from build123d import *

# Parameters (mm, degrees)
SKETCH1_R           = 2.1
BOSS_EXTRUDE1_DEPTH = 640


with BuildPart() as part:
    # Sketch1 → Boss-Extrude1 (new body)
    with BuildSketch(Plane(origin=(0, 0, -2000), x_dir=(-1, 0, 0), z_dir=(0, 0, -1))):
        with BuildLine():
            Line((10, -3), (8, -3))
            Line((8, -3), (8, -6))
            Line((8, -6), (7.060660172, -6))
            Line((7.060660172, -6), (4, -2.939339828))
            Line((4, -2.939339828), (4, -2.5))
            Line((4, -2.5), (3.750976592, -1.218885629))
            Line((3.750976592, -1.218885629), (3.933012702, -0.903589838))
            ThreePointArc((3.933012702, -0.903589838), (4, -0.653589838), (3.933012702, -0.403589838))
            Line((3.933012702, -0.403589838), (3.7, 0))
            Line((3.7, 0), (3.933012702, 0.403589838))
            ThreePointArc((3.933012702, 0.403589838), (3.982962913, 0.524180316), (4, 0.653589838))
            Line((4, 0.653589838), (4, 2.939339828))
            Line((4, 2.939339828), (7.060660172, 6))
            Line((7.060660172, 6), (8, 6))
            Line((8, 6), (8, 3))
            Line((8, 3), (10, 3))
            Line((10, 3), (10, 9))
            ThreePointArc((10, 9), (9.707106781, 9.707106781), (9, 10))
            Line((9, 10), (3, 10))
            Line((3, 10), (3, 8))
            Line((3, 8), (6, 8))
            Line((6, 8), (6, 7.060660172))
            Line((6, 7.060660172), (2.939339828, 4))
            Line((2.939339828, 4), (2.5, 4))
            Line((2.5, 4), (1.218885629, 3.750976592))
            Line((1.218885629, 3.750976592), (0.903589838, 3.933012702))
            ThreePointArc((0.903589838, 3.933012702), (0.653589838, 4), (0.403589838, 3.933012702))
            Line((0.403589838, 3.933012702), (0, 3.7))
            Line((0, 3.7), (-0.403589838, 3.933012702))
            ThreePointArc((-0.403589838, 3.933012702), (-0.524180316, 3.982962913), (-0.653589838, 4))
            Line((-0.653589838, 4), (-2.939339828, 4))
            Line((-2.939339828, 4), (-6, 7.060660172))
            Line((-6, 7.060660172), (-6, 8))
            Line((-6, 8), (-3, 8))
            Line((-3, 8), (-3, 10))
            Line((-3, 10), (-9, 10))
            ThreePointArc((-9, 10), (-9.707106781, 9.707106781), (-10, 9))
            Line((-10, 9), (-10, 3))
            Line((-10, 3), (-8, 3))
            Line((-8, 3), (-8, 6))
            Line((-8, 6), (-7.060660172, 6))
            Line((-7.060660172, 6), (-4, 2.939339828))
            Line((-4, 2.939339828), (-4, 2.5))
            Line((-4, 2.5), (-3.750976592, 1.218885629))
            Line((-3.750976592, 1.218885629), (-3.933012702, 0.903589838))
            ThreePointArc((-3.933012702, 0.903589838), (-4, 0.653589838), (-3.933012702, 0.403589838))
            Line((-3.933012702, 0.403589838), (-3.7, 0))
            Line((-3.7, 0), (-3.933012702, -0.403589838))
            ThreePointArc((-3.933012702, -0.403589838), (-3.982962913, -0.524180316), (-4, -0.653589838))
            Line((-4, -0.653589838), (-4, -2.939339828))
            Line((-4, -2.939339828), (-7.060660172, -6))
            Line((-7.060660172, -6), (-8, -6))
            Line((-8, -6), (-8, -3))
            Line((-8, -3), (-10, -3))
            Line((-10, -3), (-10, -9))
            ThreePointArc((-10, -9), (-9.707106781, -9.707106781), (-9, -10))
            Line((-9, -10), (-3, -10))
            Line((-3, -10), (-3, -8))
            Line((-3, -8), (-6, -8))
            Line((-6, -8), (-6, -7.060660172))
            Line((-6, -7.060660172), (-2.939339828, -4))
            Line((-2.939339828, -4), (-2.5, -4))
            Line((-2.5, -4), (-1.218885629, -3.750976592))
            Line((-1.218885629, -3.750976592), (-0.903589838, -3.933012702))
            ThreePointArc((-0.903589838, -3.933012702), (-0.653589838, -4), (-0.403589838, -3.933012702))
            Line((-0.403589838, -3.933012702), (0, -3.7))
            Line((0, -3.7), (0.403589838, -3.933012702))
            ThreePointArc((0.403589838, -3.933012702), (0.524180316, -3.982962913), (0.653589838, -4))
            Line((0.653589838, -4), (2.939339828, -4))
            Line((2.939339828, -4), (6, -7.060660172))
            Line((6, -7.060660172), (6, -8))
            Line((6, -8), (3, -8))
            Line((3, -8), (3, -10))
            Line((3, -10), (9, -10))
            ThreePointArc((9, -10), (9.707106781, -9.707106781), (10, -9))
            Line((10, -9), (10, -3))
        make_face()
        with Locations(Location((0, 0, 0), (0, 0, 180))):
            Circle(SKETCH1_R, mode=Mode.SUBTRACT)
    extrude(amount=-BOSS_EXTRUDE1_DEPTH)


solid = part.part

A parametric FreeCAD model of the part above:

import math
import FreeCAD as App
import Part
import Sketcher
Q = App.Units.Quantity

doc = App.newDocument("Part")
body = doc.addObject("PartDesign::Body", "Body")

# Sketch on XY plane
sketch1 = doc.addObject("Sketcher::SketchObject", "Sketch")
body.addObject(sketch1)
sketch1.AttachmentSupport = (doc.XY_Plane, [""])
sketch1.MapMode = "FlatFace"
sketch1.AttachmentOffset = App.Placement(App.Vector(0, 0, -2000), App.Rotation())
sketch1.addGeometry([
    Part.LineSegment(App.Vector(-10, -3, 0), App.Vector(-8, -3, 0)),  # 0
    Part.LineSegment(App.Vector(-8, -3, 0), App.Vector(-8, -6, 0)),  # 1
    Part.LineSegment(App.Vector(-8, -6, 0), App.Vector(-7.06, -6, 0)),  # 2
    Part.LineSegment(App.Vector(-7.06, -6, 0), App.Vector(-4, -2.94, 0)),  # 3
    Part.LineSegment(App.Vector(-4, -2.94, 0), App.Vector(-4, -2.5, 0)),  # 4
    Part.LineSegment(App.Vector(-4, -2.5, 0), App.Vector(-3.75, -1.22, 0)),  # 5
    Part.LineSegment(App.Vector(-3.75, -1.22, 0), App.Vector(-3.93, -0.9, 0)),  # 6
    Part.ArcOfCircle(Part.Circle(App.Vector(-3.5, -0.65, 0), App.Vector(0, 0, 1), 0.5), math.radians(150), math.radians(210)),  # 7
    Part.LineSegment(App.Vector(-3.93, -0.4, 0), App.Vector(-3.7, 0, 0)),  # 8
    Part.LineSegment(App.Vector(-3.7, 0, 0), App.Vector(-3.93, 0.4, 0)),  # 9
    Part.ArcOfCircle(Part.Circle(App.Vector(-3.5, 0.65, 0), App.Vector(0, 0, 1), 0.5), math.radians(-180), math.radians(-150)),  # 10
    Part.LineSegment(App.Vector(-4, 0.65, 0), App.Vector(-4, 2.94, 0)),  # 11
    Part.LineSegment(App.Vector(-4, 2.94, 0), App.Vector(-7.06, 6, 0)),  # 12
    Part.LineSegment(App.Vector(-7.06, 6, 0), App.Vector(-8, 6, 0)),  # 13
    Part.LineSegment(App.Vector(-8, 6, 0), App.Vector(-8, 3, 0)),  # 14
    Part.LineSegment(App.Vector(-8, 3, 0), App.Vector(-10, 3, 0)),  # 15
    Part.LineSegment(App.Vector(-10, 3, 0), App.Vector(-10, 9, 0)),  # 16
    Part.ArcOfCircle(Part.Circle(App.Vector(-9, 9, 0), App.Vector(0, 0, 1), 1), math.radians(90), math.radians(180)),  # 17
    Part.LineSegment(App.Vector(-9, 10, 0), App.Vector(-3, 10, 0)),  # 18
    Part.LineSegment(App.Vector(-3, 10, 0), App.Vector(-3, 8, 0)),  # 19
    Part.LineSegment(App.Vector(-3, 8, 0), App.Vector(-6, 8, 0)),  # 20
    Part.LineSegment(App.Vector(-6, 8, 0), App.Vector(-6, 7.06, 0)),  # 21
    Part.LineSegment(App.Vector(-6, 7.06, 0), App.Vector(-2.94, 4, 0)),  # 22
    Part.LineSegment(App.Vector(-2.94, 4, 0), App.Vector(-2.5, 4, 0)),  # 23
    Part.LineSegment(App.Vector(-2.5, 4, 0), App.Vector(-1.22, 3.75, 0)),  # 24
    Part.LineSegment(App.Vector(-1.22, 3.75, 0), App.Vector(-0.9, 3.93, 0)),  # 25
    Part.ArcOfCircle(Part.Circle(App.Vector(-0.65, 3.5, 0), App.Vector(0, 0, 1), 0.5), math.radians(60), math.radians(120)),  # 26
    Part.LineSegment(App.Vector(-0.4, 3.93, 0), App.Vector(0, 3.7, 0)),  # 27
    Part.LineSegment(App.Vector(0, 3.7, 0), App.Vector(0.4, 3.93, 0)),  # 28
    Part.ArcOfCircle(Part.Circle(App.Vector(0.65, 3.5, 0), App.Vector(0, 0, 1), 0.5), math.radians(90), math.radians(120)),  # 29
    Part.LineSegment(App.Vector(0.65, 4, 0), App.Vector(2.94, 4, 0)),  # 30
    Part.LineSegment(App.Vector(2.94, 4, 0), App.Vector(6, 7.06, 0)),  # 31
    Part.LineSegment(App.Vector(6, 7.06, 0), App.Vector(6, 8, 0)),  # 32
    Part.LineSegment(App.Vector(6, 8, 0), App.Vector(3, 8, 0)),  # 33
    Part.LineSegment(App.Vector(3, 8, 0), App.Vector(3, 10, 0)),  # 34
    Part.LineSegment(App.Vector(3, 10, 0), App.Vector(9, 10, 0)),  # 35
    Part.ArcOfCircle(Part.Circle(App.Vector(9, 9, 0), App.Vector(0, 0, 1), 1), math.radians(0), math.radians(90)),  # 36
    Part.LineSegment(App.Vector(10, 9, 0), App.Vector(10, 3, 0)),  # 37
    Part.LineSegment(App.Vector(10, 3, 0), App.Vector(8, 3, 0)),  # 38
    Part.LineSegment(App.Vector(8, 3, 0), App.Vector(8, 6, 0)),  # 39
    Part.LineSegment(App.Vector(8, 6, 0), App.Vector(7.06, 6, 0)),  # 40
    Part.LineSegment(App.Vector(7.06, 6, 0), App.Vector(4, 2.94, 0)),  # 41
    Part.LineSegment(App.Vector(4, 2.94, 0), App.Vector(4, 2.5, 0)),  # 42
    Part.LineSegment(App.Vector(4, 2.5, 0), App.Vector(3.75, 1.22, 0)),  # 43
    Part.LineSegment(App.Vector(3.75, 1.22, 0), App.Vector(3.93, 0.9, 0)),  # 44
    Part.ArcOfCircle(Part.Circle(App.Vector(3.5, 0.65, 0), App.Vector(0, 0, 1), 0.5), math.radians(-30), math.radians(30)),  # 45
    Part.LineSegment(App.Vector(3.93, 0.4, 0), App.Vector(3.7, 0, 0)),  # 46
    Part.LineSegment(App.Vector(3.7, 0, 0), App.Vector(3.93, -0.4, 0)),  # 47
    Part.ArcOfCircle(Part.Circle(App.Vector(3.5, -0.65, 0), App.Vector(0, 0, 1), 0.5), math.radians(0), math.radians(30)),  # 48
    Part.LineSegment(App.Vector(4, -0.65, 0), App.Vector(4, -2.94, 0)),  # 49
    Part.LineSegment(App.Vector(4, -2.94, 0), App.Vector(7.06, -6, 0)),  # 50
    Part.LineSegment(App.Vector(7.06, -6, 0), App.Vector(8, -6, 0)),  # 51
    Part.LineSegment(App.Vector(8, -6, 0), App.Vector(8, -3, 0)),  # 52
    Part.LineSegment(App.Vector(8, -3, 0), App.Vector(10, -3, 0)),  # 53
    Part.LineSegment(App.Vector(10, -3, 0), App.Vector(10, -9, 0)),  # 54
    Part.ArcOfCircle(Part.Circle(App.Vector(9, -9, 0), App.Vector(0, 0, 1), 1), math.radians(-90), math.radians(0)),  # 55
    Part.LineSegment(App.Vector(9, -10, 0), App.Vector(3, -10, 0)),  # 56
    Part.LineSegment(App.Vector(3, -10, 0), App.Vector(3, -8, 0)),  # 57
    Part.LineSegment(App.Vector(3, -8, 0), App.Vector(6, -8, 0)),  # 58
    Part.LineSegment(App.Vector(6, -8, 0), App.Vector(6, -7.06, 0)),  # 59
    Part.LineSegment(App.Vector(6, -7.06, 0), App.Vector(2.94, -4, 0)),  # 60
    Part.LineSegment(App.Vector(2.94, -4, 0), App.Vector(2.5, -4, 0)),  # 61
    Part.LineSegment(App.Vector(2.5, -4, 0), App.Vector(1.22, -3.75, 0)),  # 62
    Part.LineSegment(App.Vector(1.22, -3.75, 0), App.Vector(0.9, -3.93, 0)),  # 63
    Part.ArcOfCircle(Part.Circle(App.Vector(0.65, -3.5, 0), App.Vector(0, 0, 1), 0.5), math.radians(-120), math.radians(-60)),  # 64
    Part.LineSegment(App.Vector(0.4, -3.93, 0), App.Vector(0, -3.7, 0)),  # 65
    Part.LineSegment(App.Vector(0, -3.7, 0), App.Vector(-0.4, -3.93, 0)),  # 66
    Part.ArcOfCircle(Part.Circle(App.Vector(-0.65, -3.5, 0), App.Vector(0, 0, 1), 0.5), math.radians(-90), math.radians(-60)),  # 67
    Part.LineSegment(App.Vector(-0.65, -4, 0), App.Vector(-2.94, -4, 0)),  # 68
    Part.LineSegment(App.Vector(-2.94, -4, 0), App.Vector(-6, -7.06, 0)),  # 69
    Part.LineSegment(App.Vector(-6, -7.06, 0), App.Vector(-6, -8, 0)),  # 70
    Part.LineSegment(App.Vector(-6, -8, 0), App.Vector(-3, -8, 0)),  # 71
    Part.LineSegment(App.Vector(-3, -8, 0), App.Vector(-3, -10, 0)),  # 72
    Part.LineSegment(App.Vector(-3, -10, 0), App.Vector(-9, -10, 0)),  # 73
    Part.ArcOfCircle(Part.Circle(App.Vector(-9, -9, 0), App.Vector(0, 0, 1), 1), math.radians(-180), math.radians(-90)),  # 74
    Part.LineSegment(App.Vector(-10, -9, 0), App.Vector(-10, -3, 0)),  # 75
    Part.Circle(App.Vector(0, 0, 0), App.Vector(0, 0, 1), 2.1),  # 76
], False)
sketch1.addConstraint([
    Sketcher.Constraint("Coincident", 0, 2, 1, 1),
    Sketcher.Constraint("Coincident", 1, 2, 2, 1),
    Sketcher.Constraint("Coincident", 2, 2, 3, 1),
    Sketcher.Constraint("Coincident", 3, 2, 4, 1),
    Sketcher.Constraint("Coincident", 4, 2, 5, 1),
    Sketcher.Constraint("Coincident", 5, 2, 6, 1),
    Sketcher.Constraint("Tangent", 6, 2, 7, 2),
    Sketcher.Constraint("Tangent", 7, 1, 8, 1),
    Sketcher.Constraint("Coincident", 8, 2, 9, 1),
    Sketcher.Constraint("Tangent", 9, 2, 10, 2),
    Sketcher.Constraint("Tangent", 10, 1, 11, 1),
    Sketcher.Constraint("Coincident", 11, 2, 12, 1),
    Sketcher.Constraint("Coincident", 12, 2, 13, 1),
    Sketcher.Constraint("Coincident", 13, 2, 14, 1),
    Sketcher.Constraint("Coincident", 14, 2, 15, 1),
    Sketcher.Constraint("Coincident", 15, 2, 16, 1),
    Sketcher.Constraint("Tangent", 16, 2, 17, 2),
    Sketcher.Constraint("Tangent", 17, 1, 18, 1),
    Sketcher.Constraint("Coincident", 18, 2, 19, 1),
    Sketcher.Constraint("Coincident", 19, 2, 20, 1),
    Sketcher.Constraint("Coincident", 20, 2, 21, 1),
    Sketcher.Constraint("Coincident", 21, 2, 22, 1),
    Sketcher.Constraint("Coincident", 22, 2, 23, 1),
    Sketcher.Constraint("Coincident", 23, 2, 24, 1),
    Sketcher.Constraint("Coincident", 24, 2, 25, 1),
    Sketcher.Constraint("Tangent", 25, 2, 26, 2),
    Sketcher.Constraint("Tangent", 26, 1, 27, 1),
    Sketcher.Constraint("Coincident", 27, 2, 28, 1),
    Sketcher.Constraint("Tangent", 28, 2, 29, 2),
    Sketcher.Constraint("Tangent", 29, 1, 30, 1),
    Sketcher.Constraint("Coincident", 30, 2, 31, 1),
    Sketcher.Constraint("Coincident", 31, 2, 32, 1),
    Sketcher.Constraint("Coincident", 32, 2, 33, 1),
    Sketcher.Constraint("Coincident", 33, 2, 34, 1),
    Sketcher.Constraint("Coincident", 34, 2, 35, 1),
    Sketcher.Constraint("Tangent", 35, 2, 36, 2),
    Sketcher.Constraint("Tangent", 36, 1, 37, 1),
    Sketcher.Constraint("Coincident", 37, 2, 38, 1),
    Sketcher.Constraint("Coincident", 38, 2, 39, 1),
    Sketcher.Constraint("Coincident", 39, 2, 40, 1),
    Sketcher.Constraint("Coincident", 40, 2, 41, 1),
    Sketcher.Constraint("Coincident", 41, 2, 42, 1),
    Sketcher.Constraint("Coincident", 42, 2, 43, 1),
    Sketcher.Constraint("Coincident", 43, 2, 44, 1),
    Sketcher.Constraint("Tangent", 44, 2, 45, 2),
    Sketcher.Constraint("Tangent", 45, 1, 46, 1),
    Sketcher.Constraint("Coincident", 46, 2, 47, 1),
    Sketcher.Constraint("Tangent", 47, 2, 48, 2),
    Sketcher.Constraint("Tangent", 48, 1, 49, 1),
    Sketcher.Constraint("Coincident", 49, 2, 50, 1),
    Sketcher.Constraint("Coincident", 50, 2, 51, 1),
    Sketcher.Constraint("Coincident", 51, 2, 52, 1),
    Sketcher.Constraint("Coincident", 52, 2, 53, 1),
    Sketcher.Constraint("Coincident", 53, 2, 54, 1),
    Sketcher.Constraint("Tangent", 54, 2, 55, 2),
    Sketcher.Constraint("Tangent", 55, 1, 56, 1),
    Sketcher.Constraint("Coincident", 56, 2, 57, 1),
    Sketcher.Constraint("Coincident", 57, 2, 58, 1),
    Sketcher.Constraint("Coincident", 58, 2, 59, 1),
    Sketcher.Constraint("Coincident", 59, 2, 60, 1),
    Sketcher.Constraint("Coincident", 60, 2, 61, 1),
    Sketcher.Constraint("Coincident", 61, 2, 62, 1),
    Sketcher.Constraint("Coincident", 62, 2, 63, 1),
    Sketcher.Constraint("Tangent", 63, 2, 64, 2),
    Sketcher.Constraint("Tangent", 64, 1, 65, 1),
    Sketcher.Constraint("Coincident", 65, 2, 66, 1),
    Sketcher.Constraint("Tangent", 66, 2, 67, 2),
    Sketcher.Constraint("Tangent", 67, 1, 68, 1),
    Sketcher.Constraint("Coincident", 68, 2, 69, 1),
    Sketcher.Constraint("Coincident", 69, 2, 70, 1),
    Sketcher.Constraint("Coincident", 70, 2, 71, 1),
    Sketcher.Constraint("Coincident", 71, 2, 72, 1),
    Sketcher.Constraint("Coincident", 72, 2, 73, 1),
    Sketcher.Constraint("Tangent", 73, 2, 74, 2),
    Sketcher.Constraint("Tangent", 74, 1, 75, 1),
    Sketcher.Constraint("Coincident", 75, 2, 0, 1),
    Sketcher.Constraint("Horizontal", 0),
    Sketcher.Constraint("Vertical", 1),
    Sketcher.Constraint("Horizontal", 2),
    Sketcher.Constraint("Vertical", 4),
    Sketcher.Constraint("Vertical", 11),
    Sketcher.Constraint("Horizontal", 13),
    Sketcher.Constraint("Vertical", 14),
    Sketcher.Constraint("Horizontal", 15),
    Sketcher.Constraint("Vertical", 16),
    Sketcher.Constraint("Horizontal", 18),
    Sketcher.Constraint("Vertical", 19),
    Sketcher.Constraint("Horizontal", 20),
    Sketcher.Constraint("Vertical", 21),
    Sketcher.Constraint("Horizontal", 23),
    Sketcher.Constraint("Horizontal", 30),
    Sketcher.Constraint("Vertical", 32),
    Sketcher.Constraint("Horizontal", 33),
    Sketcher.Constraint("Vertical", 34),
    Sketcher.Constraint("Horizontal", 35),
    Sketcher.Constraint("Vertical", 37),
    Sketcher.Constraint("Horizontal", 38),
    Sketcher.Constraint("Vertical", 39),
    Sketcher.Constraint("Horizontal", 40),
    Sketcher.Constraint("Vertical", 42),
    Sketcher.Constraint("Vertical", 49),
    Sketcher.Constraint("Horizontal", 51),
    Sketcher.Constraint("Vertical", 52),
    Sketcher.Constraint("Horizontal", 53),
    Sketcher.Constraint("Vertical", 54),
    Sketcher.Constraint("Horizontal", 56),
    Sketcher.Constraint("Vertical", 57),
    Sketcher.Constraint("Horizontal", 58),
    Sketcher.Constraint("Vertical", 59),
    Sketcher.Constraint("Horizontal", 61),
    Sketcher.Constraint("Horizontal", 68),
    Sketcher.Constraint("Vertical", 70),
    Sketcher.Constraint("Horizontal", 71),
    Sketcher.Constraint("Vertical", 72),
    Sketcher.Constraint("Horizontal", 73),
    Sketcher.Constraint("Vertical", 75),
    Sketcher.Constraint("Coincident", 76, 3, -1, 1),
    Sketcher.Constraint("Equal", 7, 10),
    Sketcher.Constraint("Equal", 10, 26),
    Sketcher.Constraint("Equal", 26, 29),
    Sketcher.Constraint("Equal", 17, 36),
    Sketcher.Constraint("Equal", 29, 45),
    Sketcher.Constraint("Equal", 45, 48),
    Sketcher.Constraint("Equal", 36, 55),
    Sketcher.Constraint("Equal", 48, 64),
    Sketcher.Constraint("Equal", 64, 67),
    Sketcher.Constraint("Equal", 55, 74),
    Sketcher.Constraint("Symmetric", 7, 3, 45, 3, -1, 1),
    Sketcher.Constraint("Symmetric", 10, 3, 48, 3, -1, 1),
    Sketcher.Constraint("Symmetric", 17, 3, 55, 3, -1, 1),
    Sketcher.Constraint("Symmetric", 26, 3, 64, 3, -1, 1),
    Sketcher.Constraint("Symmetric", 29, 3, 67, 3, -1, 1),
    Sketcher.Constraint("Symmetric", 36, 3, 74, 3, -1, 1),
    Sketcher.Constraint("Symmetric", 0, 2, 38, 2, -1, 1),
    Sketcher.Constraint("Symmetric", 2, 2, 40, 2, -1, 1),
    Sketcher.Constraint("Symmetric", 3, 2, 41, 2, -1, 1),
    Sketcher.Constraint("Symmetric", 5, 2, 43, 2, -1, 1),
    Sketcher.Constraint("Symmetric", 8, 2, 46, 2, -1, 1),
    Sketcher.Constraint("Symmetric", 12, 2, 50, 2, -1, 1),
    Sketcher.Constraint("Symmetric", 14, 2, 52, 2, -1, 1),
    Sketcher.Constraint("Symmetric", 19, 2, 57, 2, -1, 1),
    Sketcher.Constraint("Symmetric", 21, 2, 59, 2, -1, 1),
    Sketcher.Constraint("Symmetric", 22, 2, 60, 2, -1, 1),
    Sketcher.Constraint("Symmetric", 24, 2, 62, 2, -1, 1),
    Sketcher.Constraint("Symmetric", 27, 2, 65, 2, -1, 1),
    Sketcher.Constraint("Symmetric", 31, 2, 69, 2, -1, 1),
    Sketcher.Constraint("Symmetric", 33, 2, 71, 2, -1, 1),
    Sketcher.Constraint("Symmetric", 26, 3, 29, 3, -2),
    Sketcher.Constraint("Symmetric", 17, 3, 36, 3, -2),
    Sketcher.Constraint("Symmetric", 10, 3, 45, 3, -2),
    Sketcher.Constraint("Symmetric", 22, 2, 30, 2, -2),
    Sketcher.Constraint("Symmetric", 21, 2, 31, 2, -2),
    Sketcher.Constraint("Symmetric", 19, 2, 33, 2, -2),
    Sketcher.Constraint("Symmetric", 14, 2, 38, 2, -2),
    Sketcher.Constraint("Symmetric", 12, 2, 40, 2, -2),
    Sketcher.Constraint("Symmetric", 11, 2, 41, 2, -2),
    Sketcher.Constraint("PointOnObject", 8, 2, -1),
    Sketcher.Constraint("PointOnObject", 27, 2, -2),
    Sketcher.Constraint("Parallel", 6, 9),
    Sketcher.Constraint("Perpendicular", 3, 12),
    Sketcher.Constraint("Parallel", 12, 22),
    Sketcher.Constraint("Perpendicular", 5, 24),
    Sketcher.Constraint("Perpendicular", 9, 25),
    Sketcher.Constraint("Perpendicular", 8, 27),
    Sketcher.Constraint("Perpendicular", 24, 43),
    Sketcher.Constraint("Perpendicular", 41, 50),
    Sketcher.Constraint("Perpendicular", 43, 62),
    Sketcher.Constraint("Perpendicular", 60, 69),
    Sketcher.Constraint("Equal", 71, 1),
    Sketcher.Constraint("Equal", 61, 4),
    Sketcher.Constraint("Equal", 68, 11),
    Sketcher.Constraint("Equal", 73, 16),
    Sketcher.Constraint("Equal", 53, 19),
    Sketcher.Constraint("Equal", 51, 21),
    Sketcher.Constraint("Equal", 12, 22),
    Sketcher.Constraint("Equal", 9, 27),
    Sketcher.Constraint("Radius", 17, Q("1 mm")),
    Sketcher.Constraint("Diameter", 76, Q("4.2 mm")),
    Sketcher.Constraint("Radius", 7, Q("0.5 mm")),
    Sketcher.Constraint("DistanceX", 0, 1, 0, 2, Q("2 mm")),
    Sketcher.Constraint("DistanceX", 18, 1, 18, 2, Q("6 mm")),
    Sketcher.Constraint("DistanceX", 20, 2, 20, 1, Q("3 mm")),
    Sketcher.Constraint("Angle", 5, Q("79 deg")),
    Sketcher.Constraint("Angle", 6, Q("120 deg")),
    Sketcher.Constraint("DistanceX", 17, 3, -1, 1, Q("9 mm")),
    Sketcher.Constraint("DistanceX", 3, 2, -1, 1, Q("4 mm")),
    Sketcher.Constraint("DistanceY", 4, 2, -1, 1, Q("2.5 mm")),
    Sketcher.Constraint("DistanceX", 8, 2, -1, 1, Q("3.7 mm")),
    Sketcher.Constraint("DistanceX", 2, 1, 2, 2, Q("0.93934 mm")),
])
pad1 = doc.addObject("PartDesign::Pad", "Pad")
body.addObject(pad1)
pad1.Profile = sketch1
pad1.Length = 640

doc.recompute()
